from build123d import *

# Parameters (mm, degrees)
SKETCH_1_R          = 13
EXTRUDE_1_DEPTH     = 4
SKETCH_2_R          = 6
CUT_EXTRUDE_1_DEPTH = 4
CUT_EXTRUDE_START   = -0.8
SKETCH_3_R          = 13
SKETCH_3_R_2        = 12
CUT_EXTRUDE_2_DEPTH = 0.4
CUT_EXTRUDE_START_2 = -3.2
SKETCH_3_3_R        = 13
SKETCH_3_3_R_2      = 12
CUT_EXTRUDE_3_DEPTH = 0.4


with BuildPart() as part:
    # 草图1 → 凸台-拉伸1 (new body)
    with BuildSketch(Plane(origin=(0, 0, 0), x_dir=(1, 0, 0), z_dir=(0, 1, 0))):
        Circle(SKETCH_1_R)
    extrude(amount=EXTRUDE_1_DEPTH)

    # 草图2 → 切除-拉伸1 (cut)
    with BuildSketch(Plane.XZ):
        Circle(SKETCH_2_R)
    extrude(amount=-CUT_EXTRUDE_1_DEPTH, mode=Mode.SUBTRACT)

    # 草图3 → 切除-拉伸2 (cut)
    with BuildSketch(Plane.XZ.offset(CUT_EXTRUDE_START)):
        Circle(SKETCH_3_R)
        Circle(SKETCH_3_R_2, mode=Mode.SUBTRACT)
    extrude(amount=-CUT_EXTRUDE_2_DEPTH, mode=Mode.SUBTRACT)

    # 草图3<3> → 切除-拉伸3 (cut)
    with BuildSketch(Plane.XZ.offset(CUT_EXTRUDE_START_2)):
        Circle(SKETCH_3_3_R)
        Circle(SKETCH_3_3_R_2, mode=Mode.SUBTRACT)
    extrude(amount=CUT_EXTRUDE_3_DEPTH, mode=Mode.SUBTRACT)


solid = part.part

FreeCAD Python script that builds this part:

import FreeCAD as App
import Part
import Sketcher

doc = App.newDocument("Part")
params = doc.addObject("Spreadsheet::Sheet", "Params")
for row, (alias, value) in enumerate([
    ("sketch1_diameter", "26 mm"),
    ("pad1_length", "4 mm"),
    ("sketch2_diameter", "12 mm"),
    ("pocket1_length", "4 mm"),
    ("sketch3_diameter", "26 mm"),
    ("sketch3_diameter2", "24 mm"),
    ("pocket2_length", "0.4 mm"),
    ("sketch4_diameter", "26 mm"),
    ("sketch4_diameter2", "24 mm"),
    ("pocket3_length", "0.4 mm"),
], start=1):
    params.set(f"A{row}", alias)
    params.set(f"B{row}", "=" + value)
    params.setAlias(f"B{row}", alias)

body = doc.addObject("PartDesign::Body", "Body")

sketch1 = body.newObject("Sketcher::SketchObject", "Sketch")
sketch1.AttachmentSupport = (doc.getObject("XZ_Plane"), [""])
sketch1.MapMode = "FlatFace"
sketch1.addGeometry(Part.Circle(App.Vector(0, 0, 0), App.Vector(0, 0, 1), 13), False)
sketch1.addConstraint([
    Sketcher.Constraint("Coincident", 0, 3, -1, 1),
    Sketcher.Constraint("Diameter", 0, 26.0),
])
sketch1.setExpression("Constraints[1]", "Params.sketch1_diameter")
pad1 = body.newObject("PartDesign::Pad", "Pad")
pad1.Profile = sketch1
pad1.setExpression("Length", "Params.pad1_length")
pad1.Reversed = True

sketch2 = body.newObject("Sketcher::SketchObject", "Sketch001")
sketch2.AttachmentSupport = (doc.getObject("XZ_Plane"), [""])
sketch2.MapMode = "FlatFace"
sketch2.addGeometry(Part.Circle(App.Vector(0, 0, 0), App.Vector(0, 0, 1), 6), False)
sketch2.addConstraint([
    Sketcher.Constraint("Coincident", 0, 3, -1, 1),
    Sketcher.Constraint("Diameter", 0, 12.0),
])
sketch2.setExpression("Constraints[1]", "Params.sketch2_diameter")
pocket1 = body.newObject("PartDesign::Pocket", "Pocket")
pocket1.Profile = sketch2
pocket1.setExpression("Length", "Params.pocket1_length")

sketch3 = body.newObject("Sketcher::SketchObject", "Sketch002")
sketch3.AttachmentSupport = (doc.getObject("XZ_Plane"), [""])
sketch3.MapMode = "FlatFace"
sketch3.AttachmentOffset = App.Placement(App.Vector(0, 0, -0.8), App.Rotation())
sketch3.addGeometry([
    Part.Circle(App.Vector(0, 0, 0), App.Vector(0, 0, 1), 13),
    Part.Circle(App.Vector(0, 0, 0), App.Vector(0, 0, 1), 12),
], False)
sketch3.addConstraint([
    Sketcher.Constraint("Coincident", 0, 3, -1, 1),
    Sketcher.Constraint("Coincident", 1, 3, -1, 1),
    Sketcher.Constraint("Diameter", 0, 26.0),
    Sketcher.Constraint("Diameter", 1, 24.0),
])
sketch3.setExpression("Constraints[2]", "Params.sketch3_diameter")
sketch3.setExpression("Constraints[3]", "Params.sketch3_diameter2")
pocket2 = body.newObject("PartDesign::Pocket", "Pocket001")
pocket2.Profile = sketch3
pocket2.setExpression("Length", "Params.pocket2_length")

sketch4 = body.newObject("Sketcher::SketchObject", "Sketch003")
sketch4.AttachmentSupport = (doc.getObject("XZ_Plane"), [""])
sketch4.MapMode = "FlatFace"
sketch4.AttachmentOffset = App.Placement(App.Vector(0, 0, -3.2), App.Rotation())
sketch4.addGeometry([
    Part.Circle(App.Vector(0, 0, 0), App.Vector(0, 0, 1), 13),
    Part.Circle(App.Vector(0, 0, 0), App.Vector(0, 0, 1), 12),
], False)
sketch4.addConstraint([
    Sketcher.Constraint("Coincident", 0, 3, -1, 1),
    Sketcher.Constraint("Coincident", 1, 3, -1, 1),
    Sketcher.Constraint("Diameter", 0, 26.0),
    Sketcher.Constraint("Diameter", 1, 24.0),
])
sketch4.setExpression("Constraints[2]", "Params.sketch4_diameter")
sketch4.setExpression("Constraints[3]", "Params.sketch4_diameter2")
pocket3 = body.newObject("PartDesign::Pocket", "Pocket002")
pocket3.Profile = sketch4
pocket3.setExpression("Length", "Params.pocket3_length")
pocket3.Reversed = True

doc.recompute()
